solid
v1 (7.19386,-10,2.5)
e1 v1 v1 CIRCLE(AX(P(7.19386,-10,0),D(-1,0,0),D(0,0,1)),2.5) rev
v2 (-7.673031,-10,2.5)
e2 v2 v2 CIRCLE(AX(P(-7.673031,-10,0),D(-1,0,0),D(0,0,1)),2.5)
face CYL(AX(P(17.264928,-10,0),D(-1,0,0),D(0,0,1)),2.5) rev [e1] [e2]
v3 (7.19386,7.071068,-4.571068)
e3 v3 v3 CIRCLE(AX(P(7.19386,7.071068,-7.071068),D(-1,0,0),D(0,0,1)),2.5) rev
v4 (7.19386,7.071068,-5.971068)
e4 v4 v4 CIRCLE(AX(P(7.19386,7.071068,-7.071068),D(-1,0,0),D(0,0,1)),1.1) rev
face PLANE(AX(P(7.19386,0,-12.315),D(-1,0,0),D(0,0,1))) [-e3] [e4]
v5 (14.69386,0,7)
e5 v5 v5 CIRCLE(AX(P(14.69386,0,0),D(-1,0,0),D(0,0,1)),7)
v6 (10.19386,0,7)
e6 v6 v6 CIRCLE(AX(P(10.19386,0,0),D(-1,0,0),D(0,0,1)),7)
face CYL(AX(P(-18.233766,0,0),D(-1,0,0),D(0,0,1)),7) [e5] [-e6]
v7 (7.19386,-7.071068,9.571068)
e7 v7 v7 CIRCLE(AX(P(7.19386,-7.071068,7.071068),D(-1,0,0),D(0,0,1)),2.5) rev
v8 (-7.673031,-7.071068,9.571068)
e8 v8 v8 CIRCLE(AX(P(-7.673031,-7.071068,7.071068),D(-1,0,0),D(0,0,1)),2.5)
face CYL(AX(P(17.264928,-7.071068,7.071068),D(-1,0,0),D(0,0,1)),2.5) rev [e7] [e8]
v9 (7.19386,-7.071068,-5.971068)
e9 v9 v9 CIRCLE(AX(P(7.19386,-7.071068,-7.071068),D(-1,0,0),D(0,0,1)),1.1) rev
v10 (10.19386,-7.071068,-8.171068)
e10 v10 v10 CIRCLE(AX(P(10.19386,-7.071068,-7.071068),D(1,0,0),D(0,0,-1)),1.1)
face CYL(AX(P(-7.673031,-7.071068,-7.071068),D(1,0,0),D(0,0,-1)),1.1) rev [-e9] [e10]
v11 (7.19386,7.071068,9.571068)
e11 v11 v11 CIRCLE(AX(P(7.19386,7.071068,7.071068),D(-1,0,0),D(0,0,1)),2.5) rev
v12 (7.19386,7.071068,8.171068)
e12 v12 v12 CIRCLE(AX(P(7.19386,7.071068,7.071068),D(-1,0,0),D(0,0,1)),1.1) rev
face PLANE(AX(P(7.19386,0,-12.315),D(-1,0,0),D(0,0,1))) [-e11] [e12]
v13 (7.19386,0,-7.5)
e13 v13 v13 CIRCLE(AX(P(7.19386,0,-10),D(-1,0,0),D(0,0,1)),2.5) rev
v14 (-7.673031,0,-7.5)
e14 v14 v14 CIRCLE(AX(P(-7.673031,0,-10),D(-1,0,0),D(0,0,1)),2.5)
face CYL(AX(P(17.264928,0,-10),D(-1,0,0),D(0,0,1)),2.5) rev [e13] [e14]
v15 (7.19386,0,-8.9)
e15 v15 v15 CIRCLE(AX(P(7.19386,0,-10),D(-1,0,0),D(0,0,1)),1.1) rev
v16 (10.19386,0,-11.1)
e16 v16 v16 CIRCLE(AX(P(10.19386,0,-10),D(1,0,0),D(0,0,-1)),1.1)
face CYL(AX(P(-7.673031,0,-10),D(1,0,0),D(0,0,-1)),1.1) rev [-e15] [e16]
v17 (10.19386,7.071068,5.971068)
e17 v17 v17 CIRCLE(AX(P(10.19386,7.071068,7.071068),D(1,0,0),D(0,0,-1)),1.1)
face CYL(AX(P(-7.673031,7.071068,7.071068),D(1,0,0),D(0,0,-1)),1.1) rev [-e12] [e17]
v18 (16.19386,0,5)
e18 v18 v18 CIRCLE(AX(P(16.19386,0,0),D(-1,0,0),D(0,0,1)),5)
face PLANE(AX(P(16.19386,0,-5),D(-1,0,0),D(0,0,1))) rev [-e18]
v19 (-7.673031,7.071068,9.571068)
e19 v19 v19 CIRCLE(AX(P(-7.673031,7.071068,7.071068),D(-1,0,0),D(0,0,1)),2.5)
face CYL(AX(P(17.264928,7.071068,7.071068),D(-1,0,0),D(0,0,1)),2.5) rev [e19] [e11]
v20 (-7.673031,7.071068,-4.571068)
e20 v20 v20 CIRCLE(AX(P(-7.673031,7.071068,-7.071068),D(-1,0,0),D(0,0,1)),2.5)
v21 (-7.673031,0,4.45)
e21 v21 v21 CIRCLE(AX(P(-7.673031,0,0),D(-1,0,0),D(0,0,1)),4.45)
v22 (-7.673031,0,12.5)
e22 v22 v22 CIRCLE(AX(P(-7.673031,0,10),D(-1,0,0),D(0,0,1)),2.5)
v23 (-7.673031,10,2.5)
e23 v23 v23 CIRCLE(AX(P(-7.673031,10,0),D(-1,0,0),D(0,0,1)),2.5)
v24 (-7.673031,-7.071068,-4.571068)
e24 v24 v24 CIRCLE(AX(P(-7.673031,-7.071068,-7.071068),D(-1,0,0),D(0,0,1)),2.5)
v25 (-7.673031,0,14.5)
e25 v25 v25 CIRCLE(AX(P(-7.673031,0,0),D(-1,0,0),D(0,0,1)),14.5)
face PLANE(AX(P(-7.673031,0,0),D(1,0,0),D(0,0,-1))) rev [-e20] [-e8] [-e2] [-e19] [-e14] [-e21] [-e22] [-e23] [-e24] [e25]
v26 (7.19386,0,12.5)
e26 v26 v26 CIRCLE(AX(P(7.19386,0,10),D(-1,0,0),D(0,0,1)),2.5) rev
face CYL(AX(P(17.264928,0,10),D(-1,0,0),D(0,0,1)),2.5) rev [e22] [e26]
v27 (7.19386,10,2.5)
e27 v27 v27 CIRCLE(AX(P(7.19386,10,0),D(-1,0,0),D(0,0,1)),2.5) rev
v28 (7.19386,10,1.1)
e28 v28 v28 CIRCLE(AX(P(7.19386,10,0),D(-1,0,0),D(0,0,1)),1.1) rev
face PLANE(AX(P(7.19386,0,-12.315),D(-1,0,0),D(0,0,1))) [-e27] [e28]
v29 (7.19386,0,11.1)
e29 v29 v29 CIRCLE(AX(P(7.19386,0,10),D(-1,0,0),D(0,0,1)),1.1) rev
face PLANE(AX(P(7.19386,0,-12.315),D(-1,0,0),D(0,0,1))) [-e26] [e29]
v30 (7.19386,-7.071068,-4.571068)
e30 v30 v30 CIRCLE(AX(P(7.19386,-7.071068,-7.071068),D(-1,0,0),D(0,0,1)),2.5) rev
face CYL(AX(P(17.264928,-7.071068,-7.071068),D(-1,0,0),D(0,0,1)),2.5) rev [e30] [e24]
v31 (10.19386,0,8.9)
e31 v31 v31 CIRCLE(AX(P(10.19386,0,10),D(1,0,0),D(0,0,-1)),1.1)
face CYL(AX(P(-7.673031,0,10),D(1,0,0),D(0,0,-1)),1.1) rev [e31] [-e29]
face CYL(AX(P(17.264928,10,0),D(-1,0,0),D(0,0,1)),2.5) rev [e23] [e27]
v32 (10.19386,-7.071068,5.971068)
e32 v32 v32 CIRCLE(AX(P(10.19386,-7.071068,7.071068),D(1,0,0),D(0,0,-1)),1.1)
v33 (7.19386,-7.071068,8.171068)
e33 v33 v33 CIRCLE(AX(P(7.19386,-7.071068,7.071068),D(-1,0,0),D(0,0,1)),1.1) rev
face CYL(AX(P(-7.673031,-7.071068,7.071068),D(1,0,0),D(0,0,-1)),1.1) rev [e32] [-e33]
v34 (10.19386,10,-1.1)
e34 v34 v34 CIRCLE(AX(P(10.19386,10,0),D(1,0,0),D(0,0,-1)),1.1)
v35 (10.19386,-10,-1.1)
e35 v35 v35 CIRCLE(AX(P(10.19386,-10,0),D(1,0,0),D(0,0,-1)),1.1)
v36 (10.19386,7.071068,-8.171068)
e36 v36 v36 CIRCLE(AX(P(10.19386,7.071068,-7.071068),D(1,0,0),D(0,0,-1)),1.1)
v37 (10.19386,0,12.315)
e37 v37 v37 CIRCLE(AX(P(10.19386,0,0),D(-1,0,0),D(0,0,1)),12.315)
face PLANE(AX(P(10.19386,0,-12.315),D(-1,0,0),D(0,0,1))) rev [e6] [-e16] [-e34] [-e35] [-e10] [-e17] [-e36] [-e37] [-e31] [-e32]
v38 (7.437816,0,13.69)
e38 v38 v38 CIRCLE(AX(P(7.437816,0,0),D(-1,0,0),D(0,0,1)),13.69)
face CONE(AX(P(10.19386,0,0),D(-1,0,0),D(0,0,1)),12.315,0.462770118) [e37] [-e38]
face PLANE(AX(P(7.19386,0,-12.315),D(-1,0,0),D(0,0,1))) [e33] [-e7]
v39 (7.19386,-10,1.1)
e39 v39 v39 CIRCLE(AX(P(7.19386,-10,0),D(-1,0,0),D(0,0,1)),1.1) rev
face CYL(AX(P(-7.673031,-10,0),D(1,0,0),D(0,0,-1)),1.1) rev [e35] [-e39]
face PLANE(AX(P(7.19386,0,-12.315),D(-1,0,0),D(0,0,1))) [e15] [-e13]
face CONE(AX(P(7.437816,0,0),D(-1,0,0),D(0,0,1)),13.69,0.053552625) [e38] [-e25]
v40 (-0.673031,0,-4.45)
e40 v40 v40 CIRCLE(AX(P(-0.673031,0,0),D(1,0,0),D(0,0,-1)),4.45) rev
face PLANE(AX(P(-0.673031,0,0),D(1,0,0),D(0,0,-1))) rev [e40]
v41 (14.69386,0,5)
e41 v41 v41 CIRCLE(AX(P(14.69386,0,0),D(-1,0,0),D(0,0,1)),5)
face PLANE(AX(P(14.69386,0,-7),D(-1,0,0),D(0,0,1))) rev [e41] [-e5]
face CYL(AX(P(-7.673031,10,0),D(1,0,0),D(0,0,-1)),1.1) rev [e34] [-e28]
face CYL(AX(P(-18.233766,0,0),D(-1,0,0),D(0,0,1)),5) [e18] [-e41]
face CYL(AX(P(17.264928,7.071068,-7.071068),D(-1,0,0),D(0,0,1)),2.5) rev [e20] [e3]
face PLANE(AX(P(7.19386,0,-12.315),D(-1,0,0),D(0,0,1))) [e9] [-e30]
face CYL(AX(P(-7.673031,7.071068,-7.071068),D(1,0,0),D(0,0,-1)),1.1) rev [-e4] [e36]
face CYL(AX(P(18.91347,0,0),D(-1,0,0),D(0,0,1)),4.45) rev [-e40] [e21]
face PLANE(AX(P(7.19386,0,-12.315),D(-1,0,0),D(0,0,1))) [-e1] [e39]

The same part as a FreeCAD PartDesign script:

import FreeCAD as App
import Part
import Sketcher


def add_polygon(sketch, points):
    """Adds a closed chain of lines whose ends are joined by coincident constraints."""
    first, n = sketch.GeometryCount, len(points)
    for a, b in zip(points, points[1:] + points[:1]):
        sketch.addGeometry(Part.LineSegment(App.Vector(*a, 0), App.Vector(*b, 0)), False)
    for i in range(n):
        sketch.addConstraint(Sketcher.Constraint("Coincident", first + i, 2, first + (i + 1) % n, 1))

doc = App.newDocument("Part")
body = doc.addObject("PartDesign::Body", "Body")

sketch1 = body.newObject("Sketcher::SketchObject", "Sketch")
sketch1.AttachmentSupport = (doc.getObject("XZ_Plane"), [""])
sketch1.MapMode = "FlatFace"
add_polygon(sketch1, [(10.2, -7), (10.2, -12.3), (7.4, -13.7), (-7.7, -14.5), (-7.7, 0), (16.2, 0), (16.2, -5), (14.7, -5), (14.7, -7)])
sketch1.addConstraint(Sketcher.Constraint("Vertical", 0))
sketch1.addConstraint(Sketcher.Constraint("Vertical", 3))
sketch1.addConstraint(Sketcher.Constraint("Horizontal", 4))
sketch1.addConstraint(Sketcher.Constraint("Vertical", 5))
sketch1.addConstraint(Sketcher.Constraint("Horizontal", 6))
sketch1.addConstraint(Sketcher.Constraint("Vertical", 7))
sketch1.addConstraint(Sketcher.Constraint("Horizontal", 8))
sketch1.addConstraint(Sketcher.Constraint("PointOnObject", 3, 2, -1))
sketch1.addConstraint(Sketcher.Constraint("DistanceY", 5, 2, 5, 1, 5.0))
sketch1.addConstraint(Sketcher.Constraint("DistanceY", 7, 2, 7, 1, 2.0))
sketch1.addConstraint(Sketcher.Constraint("DistanceX", 6, 2, 6, 1, 1.5))
sketch1.addConstraint(Sketcher.Constraint("DistanceX", 8, 2, 8, 1, 4.5))
sketch1.addConstraint(Sketcher.Constraint("DistanceY", 3, 1, 3, 2, 14.5))
sketch1.addConstraint(Sketcher.Constraint("Distance", 1, 3.08))
sketch1.addConstraint(Sketcher.Constraint("DistanceY", 0, 2, 0, 1, 5.315))
sketch1.addConstraint(Sketcher.Constraint("DistanceY", 1, 2, -1, 1, 13.69))
sketch1.addConstraint(Sketcher.Constraint("DistanceX", 4, 1, 4, 2, 23.86689))
sketch1.addConstraint(Sketcher.Constraint("DistanceX", -1, 1, 0, 2, 10.19386))
revolution = body.newObject("PartDesign::Revolution", "Revolution")
revolution.Profile = sketch1
revolution.ReferenceAxis = (sketch1, ["H_Axis"])
revolution.Angle = 360

sketch2 = body.newObject("Sketcher::SketchObject", "Sketch001")
sketch2.AttachmentSupport = (doc.getObject("YZ_Plane"), [""])
sketch2.MapMode = "FlatFace"
sketch2.AttachmentOffset = App.Placement(App.Vector(0, 0, -7.673031), App.Rotation())
sketch2.addGeometry(Part.Circle(App.Vector(0, 0, 0), App.Vector(0, 0, 1), 4.5), False)
sketch2.addConstraint(Sketcher.Constraint("Coincident", 0, 3, -1, 1))
sketch2.addConstraint(Sketcher.Constraint("Diameter", 0, 8.9))
pocket1 = body.newObject("PartDesign::Pocket", "Pocket")
pocket1.Profile = sketch2
pocket1.Length = 7
pocket1.Reversed = True

sketch3 = body.newObject("Sketcher::SketchObject", "Sketch002")
sketch3.AttachmentSupport = (doc.getObject("YZ_Plane"), [""])
sketch3.MapMode = "FlatFace"
sketch3.AttachmentOffset = App.Placement(App.Vector(0, 0, 10.19386), App.Rotation())
sketch3.addGeometry(Part.Circle(App.Vector(10, 0, 0), App.Vector(0, 0, 1), 1.1), False)
sketch3.addGeometry(Part.Circle(App.Vector(7.1, -7.1, 0), App.Vector(0, 0, 1), 1.1), False)
sketch3.addGeometry(Part.Circle(App.Vector(0, -10, 0), App.Vector(0, 0, 1), 1.1), False)
sketch3.addGeometry(Part.Circle(App.Vector(-7.1, -7.1, 0), App.Vector(0, 0, 1), 1.1), False)
sketch3.addGeometry(Part.Circle(App.Vector(-10, 0, 0), App.Vector(0, 0, 1), 1.1), False)
sketch3.addGeometry(Part.Circle(App.Vector(-7.1, 7.1, 0), App.Vector(0, 0, 1), 1.1), False)
sketch3.addGeometry(Part.Circle(App.Vector(0, 10, 0), App.Vector(0, 0, 1), 1.1), False)
sketch3.addGeometry(Part.Circle(App.Vector(7.1, 7.1, 0), App.Vector(0, 0, 1), 1.1), False)
sketch3.addConstraint(Sketcher.Constraint("Equal", 0, 1))
sketch3.addConstraint(Sketcher.Constraint("Equal", 1, 2))
sketch3.addConstraint(Sketcher.Constraint("Equal", 2, 3))
sketch3.addConstraint(Sketcher.Constraint("Equal", 3, 4))
sketch3.addConstraint(Sketcher.Constraint("Equal", 4, 5))
sketch3.addConstraint(Sketcher.Constraint("Equal", 5, 6))
sketch3.addConstraint(Sketcher.Constraint("Equal", 6, 7))
sketch3.addConstraint(Sketcher.Constraint("Symmetric", 0, 3, 4, 3, -1, 1))
sketch3.addConstraint(Sketcher.Constraint("Symmetric", 1, 3, 5, 3, -1, 1))
sketch3.addConstraint(Sketcher.Constraint("Symmetric", 2, 3, 6, 3, -1, 1))
sketch3.addConstraint(Sketcher.Constraint("Symmetric", 3, 3, 7, 3, -1, 1))
sketch3.addConstraint(Sketcher.Constraint("Symmetric", 1, 3, 3, 3, -2))
sketch3.addConstraint(Sketcher.Constraint("PointOnObject", 0, 3, -1))
sketch3.addConstraint(Sketcher.Constraint("PointOnObject", 2, 3, -2))
sketch3.addConstraint(Sketcher.Constraint("Diameter", 0, 2.2))
sketch3.addConstraint(Sketcher.Constraint("DistanceX", -1, 1, 0, 3, 10.0))
sketch3.addConstraint(Sketcher.Constraint("DistanceY", 2, 3, -1, 1, 10.0))
sketch3.addConstraint(Sketcher.Constraint("DistanceX", -1, 1, 1, 3, 7.071068))
sketch3.addConstraint(Sketcher.Constraint("DistanceY", 1, 3, -1, 1, 7.071068))
pocket2 = body.newObject("PartDesign::Pocket", "Pocket001")
pocket2.Profile = sketch3
pocket2.Type = "ThroughAll"

sketch4 = body.newObject("Sketcher::SketchObject", "Sketch003")
sketch4.AttachmentSupport = (doc.getObject("YZ_Plane"), [""])
sketch4.MapMode = "FlatFace"
sketch4.AttachmentOffset = App.Placement(App.Vector(0, 0, -7.673031), App.Rotation())
sketch4.addGeometry(Part.Circle(App.Vector(10, 0, 0), App.Vector(0, 0, 1), 2.5), False)
sketch4.addGeometry(Part.Circle(App.Vector(7.1, 7.1, 0), App.Vector(0, 0, 1), 2.5), False)
sketch4.addGeometry(Part.Circle(App.Vector(0, 10, 0), App.Vector(0, 0, 1), 2.5), False)
sketch4.addGeometry(Part.Circle(App.Vector(-7.1, 7.1, 0), App.Vector(0, 0, 1), 2.5), False)
sketch4.addGeometry(Part.Circle(App.Vector(-10, 0, 0), App.Vector(0, 0, 1), 2.5), False)
sketch4.addGeometry(Part.Circle(App.Vector(-7.1, -7.1, 0), App.Vector(0, 0, 1), 2.5), False)
sketch4.addGeometry(Part.Circle(App.Vector(0, -10, 0), App.Vector(0, 0, 1), 2.5), False)
sketch4.addGeometry(Part.Circle(App.Vector(7.1, -7.1, 0), App.Vector(0, 0, 1), 2.5), False)
sketch4.addConstraint(Sketcher.Constraint("Equal", 0, 1))
sketch4.addConstraint(Sketcher.Constraint("Equal", 1, 2))
sketch4.addConstraint(Sketcher.Constraint("Equal", 2, 3))
sketch4.addConstraint(Sketcher.Constraint("Equal", 3, 4))
sketch4.addConstraint(Sketcher.Constraint("Equal", 4, 5))
sketch4.addConstraint(Sketcher.Constraint("Equal", 5, 6))
sketch4.addConstraint(Sketcher.Constraint("Equal", 6, 7))
sketch4.addConstraint(Sketcher.Constraint("Symmetric", 0, 3, 4, 3, -1, 1))
sketch4.addConstraint(Sketcher.Constraint("Symmetric", 1, 3, 5, 3, -1, 1))
sketch4.addConstraint(Sketcher.Constraint("Symmetric", 2, 3, 6, 3, -1, 1))
sketch4.addConstraint(Sketcher.Constraint("Symmetric", 3, 3, 7, 3, -1, 1))
sketch4.addConstraint(Sketcher.Constraint("Symmetric", 1, 3, 3, 3, -2))
sketch4.addConstraint(Sketcher.Constraint("PointOnObject", 0, 3, -1))
sketch4.addConstraint(Sketcher.Constraint("PointOnObject", 2, 3, -2))
sketch4.addConstraint(Sketcher.Constraint("Diameter", 0, 5.0))
sketch4.addConstraint(Sketcher.Constraint("DistanceX", -1, 1, 0, 3, 10.0))
sketch4.addConstraint(Sketcher.Constraint("DistanceY", -1, 1, 2, 3, 10.0))
sketch4.addConstraint(Sketcher.Constraint("DistanceX", -1, 1, 1, 3, 7.071068))
sketch4.addConstraint(Sketcher.Constraint("DistanceY", -1, 1, 1, 3, 7.071068))
pocket3 = body.newObject("PartDesign::Pocket", "Pocket002")
pocket3.Profile = sketch4
pocket3.Length = 14.86689
pocket3.Reversed = True

doc.recompute()
